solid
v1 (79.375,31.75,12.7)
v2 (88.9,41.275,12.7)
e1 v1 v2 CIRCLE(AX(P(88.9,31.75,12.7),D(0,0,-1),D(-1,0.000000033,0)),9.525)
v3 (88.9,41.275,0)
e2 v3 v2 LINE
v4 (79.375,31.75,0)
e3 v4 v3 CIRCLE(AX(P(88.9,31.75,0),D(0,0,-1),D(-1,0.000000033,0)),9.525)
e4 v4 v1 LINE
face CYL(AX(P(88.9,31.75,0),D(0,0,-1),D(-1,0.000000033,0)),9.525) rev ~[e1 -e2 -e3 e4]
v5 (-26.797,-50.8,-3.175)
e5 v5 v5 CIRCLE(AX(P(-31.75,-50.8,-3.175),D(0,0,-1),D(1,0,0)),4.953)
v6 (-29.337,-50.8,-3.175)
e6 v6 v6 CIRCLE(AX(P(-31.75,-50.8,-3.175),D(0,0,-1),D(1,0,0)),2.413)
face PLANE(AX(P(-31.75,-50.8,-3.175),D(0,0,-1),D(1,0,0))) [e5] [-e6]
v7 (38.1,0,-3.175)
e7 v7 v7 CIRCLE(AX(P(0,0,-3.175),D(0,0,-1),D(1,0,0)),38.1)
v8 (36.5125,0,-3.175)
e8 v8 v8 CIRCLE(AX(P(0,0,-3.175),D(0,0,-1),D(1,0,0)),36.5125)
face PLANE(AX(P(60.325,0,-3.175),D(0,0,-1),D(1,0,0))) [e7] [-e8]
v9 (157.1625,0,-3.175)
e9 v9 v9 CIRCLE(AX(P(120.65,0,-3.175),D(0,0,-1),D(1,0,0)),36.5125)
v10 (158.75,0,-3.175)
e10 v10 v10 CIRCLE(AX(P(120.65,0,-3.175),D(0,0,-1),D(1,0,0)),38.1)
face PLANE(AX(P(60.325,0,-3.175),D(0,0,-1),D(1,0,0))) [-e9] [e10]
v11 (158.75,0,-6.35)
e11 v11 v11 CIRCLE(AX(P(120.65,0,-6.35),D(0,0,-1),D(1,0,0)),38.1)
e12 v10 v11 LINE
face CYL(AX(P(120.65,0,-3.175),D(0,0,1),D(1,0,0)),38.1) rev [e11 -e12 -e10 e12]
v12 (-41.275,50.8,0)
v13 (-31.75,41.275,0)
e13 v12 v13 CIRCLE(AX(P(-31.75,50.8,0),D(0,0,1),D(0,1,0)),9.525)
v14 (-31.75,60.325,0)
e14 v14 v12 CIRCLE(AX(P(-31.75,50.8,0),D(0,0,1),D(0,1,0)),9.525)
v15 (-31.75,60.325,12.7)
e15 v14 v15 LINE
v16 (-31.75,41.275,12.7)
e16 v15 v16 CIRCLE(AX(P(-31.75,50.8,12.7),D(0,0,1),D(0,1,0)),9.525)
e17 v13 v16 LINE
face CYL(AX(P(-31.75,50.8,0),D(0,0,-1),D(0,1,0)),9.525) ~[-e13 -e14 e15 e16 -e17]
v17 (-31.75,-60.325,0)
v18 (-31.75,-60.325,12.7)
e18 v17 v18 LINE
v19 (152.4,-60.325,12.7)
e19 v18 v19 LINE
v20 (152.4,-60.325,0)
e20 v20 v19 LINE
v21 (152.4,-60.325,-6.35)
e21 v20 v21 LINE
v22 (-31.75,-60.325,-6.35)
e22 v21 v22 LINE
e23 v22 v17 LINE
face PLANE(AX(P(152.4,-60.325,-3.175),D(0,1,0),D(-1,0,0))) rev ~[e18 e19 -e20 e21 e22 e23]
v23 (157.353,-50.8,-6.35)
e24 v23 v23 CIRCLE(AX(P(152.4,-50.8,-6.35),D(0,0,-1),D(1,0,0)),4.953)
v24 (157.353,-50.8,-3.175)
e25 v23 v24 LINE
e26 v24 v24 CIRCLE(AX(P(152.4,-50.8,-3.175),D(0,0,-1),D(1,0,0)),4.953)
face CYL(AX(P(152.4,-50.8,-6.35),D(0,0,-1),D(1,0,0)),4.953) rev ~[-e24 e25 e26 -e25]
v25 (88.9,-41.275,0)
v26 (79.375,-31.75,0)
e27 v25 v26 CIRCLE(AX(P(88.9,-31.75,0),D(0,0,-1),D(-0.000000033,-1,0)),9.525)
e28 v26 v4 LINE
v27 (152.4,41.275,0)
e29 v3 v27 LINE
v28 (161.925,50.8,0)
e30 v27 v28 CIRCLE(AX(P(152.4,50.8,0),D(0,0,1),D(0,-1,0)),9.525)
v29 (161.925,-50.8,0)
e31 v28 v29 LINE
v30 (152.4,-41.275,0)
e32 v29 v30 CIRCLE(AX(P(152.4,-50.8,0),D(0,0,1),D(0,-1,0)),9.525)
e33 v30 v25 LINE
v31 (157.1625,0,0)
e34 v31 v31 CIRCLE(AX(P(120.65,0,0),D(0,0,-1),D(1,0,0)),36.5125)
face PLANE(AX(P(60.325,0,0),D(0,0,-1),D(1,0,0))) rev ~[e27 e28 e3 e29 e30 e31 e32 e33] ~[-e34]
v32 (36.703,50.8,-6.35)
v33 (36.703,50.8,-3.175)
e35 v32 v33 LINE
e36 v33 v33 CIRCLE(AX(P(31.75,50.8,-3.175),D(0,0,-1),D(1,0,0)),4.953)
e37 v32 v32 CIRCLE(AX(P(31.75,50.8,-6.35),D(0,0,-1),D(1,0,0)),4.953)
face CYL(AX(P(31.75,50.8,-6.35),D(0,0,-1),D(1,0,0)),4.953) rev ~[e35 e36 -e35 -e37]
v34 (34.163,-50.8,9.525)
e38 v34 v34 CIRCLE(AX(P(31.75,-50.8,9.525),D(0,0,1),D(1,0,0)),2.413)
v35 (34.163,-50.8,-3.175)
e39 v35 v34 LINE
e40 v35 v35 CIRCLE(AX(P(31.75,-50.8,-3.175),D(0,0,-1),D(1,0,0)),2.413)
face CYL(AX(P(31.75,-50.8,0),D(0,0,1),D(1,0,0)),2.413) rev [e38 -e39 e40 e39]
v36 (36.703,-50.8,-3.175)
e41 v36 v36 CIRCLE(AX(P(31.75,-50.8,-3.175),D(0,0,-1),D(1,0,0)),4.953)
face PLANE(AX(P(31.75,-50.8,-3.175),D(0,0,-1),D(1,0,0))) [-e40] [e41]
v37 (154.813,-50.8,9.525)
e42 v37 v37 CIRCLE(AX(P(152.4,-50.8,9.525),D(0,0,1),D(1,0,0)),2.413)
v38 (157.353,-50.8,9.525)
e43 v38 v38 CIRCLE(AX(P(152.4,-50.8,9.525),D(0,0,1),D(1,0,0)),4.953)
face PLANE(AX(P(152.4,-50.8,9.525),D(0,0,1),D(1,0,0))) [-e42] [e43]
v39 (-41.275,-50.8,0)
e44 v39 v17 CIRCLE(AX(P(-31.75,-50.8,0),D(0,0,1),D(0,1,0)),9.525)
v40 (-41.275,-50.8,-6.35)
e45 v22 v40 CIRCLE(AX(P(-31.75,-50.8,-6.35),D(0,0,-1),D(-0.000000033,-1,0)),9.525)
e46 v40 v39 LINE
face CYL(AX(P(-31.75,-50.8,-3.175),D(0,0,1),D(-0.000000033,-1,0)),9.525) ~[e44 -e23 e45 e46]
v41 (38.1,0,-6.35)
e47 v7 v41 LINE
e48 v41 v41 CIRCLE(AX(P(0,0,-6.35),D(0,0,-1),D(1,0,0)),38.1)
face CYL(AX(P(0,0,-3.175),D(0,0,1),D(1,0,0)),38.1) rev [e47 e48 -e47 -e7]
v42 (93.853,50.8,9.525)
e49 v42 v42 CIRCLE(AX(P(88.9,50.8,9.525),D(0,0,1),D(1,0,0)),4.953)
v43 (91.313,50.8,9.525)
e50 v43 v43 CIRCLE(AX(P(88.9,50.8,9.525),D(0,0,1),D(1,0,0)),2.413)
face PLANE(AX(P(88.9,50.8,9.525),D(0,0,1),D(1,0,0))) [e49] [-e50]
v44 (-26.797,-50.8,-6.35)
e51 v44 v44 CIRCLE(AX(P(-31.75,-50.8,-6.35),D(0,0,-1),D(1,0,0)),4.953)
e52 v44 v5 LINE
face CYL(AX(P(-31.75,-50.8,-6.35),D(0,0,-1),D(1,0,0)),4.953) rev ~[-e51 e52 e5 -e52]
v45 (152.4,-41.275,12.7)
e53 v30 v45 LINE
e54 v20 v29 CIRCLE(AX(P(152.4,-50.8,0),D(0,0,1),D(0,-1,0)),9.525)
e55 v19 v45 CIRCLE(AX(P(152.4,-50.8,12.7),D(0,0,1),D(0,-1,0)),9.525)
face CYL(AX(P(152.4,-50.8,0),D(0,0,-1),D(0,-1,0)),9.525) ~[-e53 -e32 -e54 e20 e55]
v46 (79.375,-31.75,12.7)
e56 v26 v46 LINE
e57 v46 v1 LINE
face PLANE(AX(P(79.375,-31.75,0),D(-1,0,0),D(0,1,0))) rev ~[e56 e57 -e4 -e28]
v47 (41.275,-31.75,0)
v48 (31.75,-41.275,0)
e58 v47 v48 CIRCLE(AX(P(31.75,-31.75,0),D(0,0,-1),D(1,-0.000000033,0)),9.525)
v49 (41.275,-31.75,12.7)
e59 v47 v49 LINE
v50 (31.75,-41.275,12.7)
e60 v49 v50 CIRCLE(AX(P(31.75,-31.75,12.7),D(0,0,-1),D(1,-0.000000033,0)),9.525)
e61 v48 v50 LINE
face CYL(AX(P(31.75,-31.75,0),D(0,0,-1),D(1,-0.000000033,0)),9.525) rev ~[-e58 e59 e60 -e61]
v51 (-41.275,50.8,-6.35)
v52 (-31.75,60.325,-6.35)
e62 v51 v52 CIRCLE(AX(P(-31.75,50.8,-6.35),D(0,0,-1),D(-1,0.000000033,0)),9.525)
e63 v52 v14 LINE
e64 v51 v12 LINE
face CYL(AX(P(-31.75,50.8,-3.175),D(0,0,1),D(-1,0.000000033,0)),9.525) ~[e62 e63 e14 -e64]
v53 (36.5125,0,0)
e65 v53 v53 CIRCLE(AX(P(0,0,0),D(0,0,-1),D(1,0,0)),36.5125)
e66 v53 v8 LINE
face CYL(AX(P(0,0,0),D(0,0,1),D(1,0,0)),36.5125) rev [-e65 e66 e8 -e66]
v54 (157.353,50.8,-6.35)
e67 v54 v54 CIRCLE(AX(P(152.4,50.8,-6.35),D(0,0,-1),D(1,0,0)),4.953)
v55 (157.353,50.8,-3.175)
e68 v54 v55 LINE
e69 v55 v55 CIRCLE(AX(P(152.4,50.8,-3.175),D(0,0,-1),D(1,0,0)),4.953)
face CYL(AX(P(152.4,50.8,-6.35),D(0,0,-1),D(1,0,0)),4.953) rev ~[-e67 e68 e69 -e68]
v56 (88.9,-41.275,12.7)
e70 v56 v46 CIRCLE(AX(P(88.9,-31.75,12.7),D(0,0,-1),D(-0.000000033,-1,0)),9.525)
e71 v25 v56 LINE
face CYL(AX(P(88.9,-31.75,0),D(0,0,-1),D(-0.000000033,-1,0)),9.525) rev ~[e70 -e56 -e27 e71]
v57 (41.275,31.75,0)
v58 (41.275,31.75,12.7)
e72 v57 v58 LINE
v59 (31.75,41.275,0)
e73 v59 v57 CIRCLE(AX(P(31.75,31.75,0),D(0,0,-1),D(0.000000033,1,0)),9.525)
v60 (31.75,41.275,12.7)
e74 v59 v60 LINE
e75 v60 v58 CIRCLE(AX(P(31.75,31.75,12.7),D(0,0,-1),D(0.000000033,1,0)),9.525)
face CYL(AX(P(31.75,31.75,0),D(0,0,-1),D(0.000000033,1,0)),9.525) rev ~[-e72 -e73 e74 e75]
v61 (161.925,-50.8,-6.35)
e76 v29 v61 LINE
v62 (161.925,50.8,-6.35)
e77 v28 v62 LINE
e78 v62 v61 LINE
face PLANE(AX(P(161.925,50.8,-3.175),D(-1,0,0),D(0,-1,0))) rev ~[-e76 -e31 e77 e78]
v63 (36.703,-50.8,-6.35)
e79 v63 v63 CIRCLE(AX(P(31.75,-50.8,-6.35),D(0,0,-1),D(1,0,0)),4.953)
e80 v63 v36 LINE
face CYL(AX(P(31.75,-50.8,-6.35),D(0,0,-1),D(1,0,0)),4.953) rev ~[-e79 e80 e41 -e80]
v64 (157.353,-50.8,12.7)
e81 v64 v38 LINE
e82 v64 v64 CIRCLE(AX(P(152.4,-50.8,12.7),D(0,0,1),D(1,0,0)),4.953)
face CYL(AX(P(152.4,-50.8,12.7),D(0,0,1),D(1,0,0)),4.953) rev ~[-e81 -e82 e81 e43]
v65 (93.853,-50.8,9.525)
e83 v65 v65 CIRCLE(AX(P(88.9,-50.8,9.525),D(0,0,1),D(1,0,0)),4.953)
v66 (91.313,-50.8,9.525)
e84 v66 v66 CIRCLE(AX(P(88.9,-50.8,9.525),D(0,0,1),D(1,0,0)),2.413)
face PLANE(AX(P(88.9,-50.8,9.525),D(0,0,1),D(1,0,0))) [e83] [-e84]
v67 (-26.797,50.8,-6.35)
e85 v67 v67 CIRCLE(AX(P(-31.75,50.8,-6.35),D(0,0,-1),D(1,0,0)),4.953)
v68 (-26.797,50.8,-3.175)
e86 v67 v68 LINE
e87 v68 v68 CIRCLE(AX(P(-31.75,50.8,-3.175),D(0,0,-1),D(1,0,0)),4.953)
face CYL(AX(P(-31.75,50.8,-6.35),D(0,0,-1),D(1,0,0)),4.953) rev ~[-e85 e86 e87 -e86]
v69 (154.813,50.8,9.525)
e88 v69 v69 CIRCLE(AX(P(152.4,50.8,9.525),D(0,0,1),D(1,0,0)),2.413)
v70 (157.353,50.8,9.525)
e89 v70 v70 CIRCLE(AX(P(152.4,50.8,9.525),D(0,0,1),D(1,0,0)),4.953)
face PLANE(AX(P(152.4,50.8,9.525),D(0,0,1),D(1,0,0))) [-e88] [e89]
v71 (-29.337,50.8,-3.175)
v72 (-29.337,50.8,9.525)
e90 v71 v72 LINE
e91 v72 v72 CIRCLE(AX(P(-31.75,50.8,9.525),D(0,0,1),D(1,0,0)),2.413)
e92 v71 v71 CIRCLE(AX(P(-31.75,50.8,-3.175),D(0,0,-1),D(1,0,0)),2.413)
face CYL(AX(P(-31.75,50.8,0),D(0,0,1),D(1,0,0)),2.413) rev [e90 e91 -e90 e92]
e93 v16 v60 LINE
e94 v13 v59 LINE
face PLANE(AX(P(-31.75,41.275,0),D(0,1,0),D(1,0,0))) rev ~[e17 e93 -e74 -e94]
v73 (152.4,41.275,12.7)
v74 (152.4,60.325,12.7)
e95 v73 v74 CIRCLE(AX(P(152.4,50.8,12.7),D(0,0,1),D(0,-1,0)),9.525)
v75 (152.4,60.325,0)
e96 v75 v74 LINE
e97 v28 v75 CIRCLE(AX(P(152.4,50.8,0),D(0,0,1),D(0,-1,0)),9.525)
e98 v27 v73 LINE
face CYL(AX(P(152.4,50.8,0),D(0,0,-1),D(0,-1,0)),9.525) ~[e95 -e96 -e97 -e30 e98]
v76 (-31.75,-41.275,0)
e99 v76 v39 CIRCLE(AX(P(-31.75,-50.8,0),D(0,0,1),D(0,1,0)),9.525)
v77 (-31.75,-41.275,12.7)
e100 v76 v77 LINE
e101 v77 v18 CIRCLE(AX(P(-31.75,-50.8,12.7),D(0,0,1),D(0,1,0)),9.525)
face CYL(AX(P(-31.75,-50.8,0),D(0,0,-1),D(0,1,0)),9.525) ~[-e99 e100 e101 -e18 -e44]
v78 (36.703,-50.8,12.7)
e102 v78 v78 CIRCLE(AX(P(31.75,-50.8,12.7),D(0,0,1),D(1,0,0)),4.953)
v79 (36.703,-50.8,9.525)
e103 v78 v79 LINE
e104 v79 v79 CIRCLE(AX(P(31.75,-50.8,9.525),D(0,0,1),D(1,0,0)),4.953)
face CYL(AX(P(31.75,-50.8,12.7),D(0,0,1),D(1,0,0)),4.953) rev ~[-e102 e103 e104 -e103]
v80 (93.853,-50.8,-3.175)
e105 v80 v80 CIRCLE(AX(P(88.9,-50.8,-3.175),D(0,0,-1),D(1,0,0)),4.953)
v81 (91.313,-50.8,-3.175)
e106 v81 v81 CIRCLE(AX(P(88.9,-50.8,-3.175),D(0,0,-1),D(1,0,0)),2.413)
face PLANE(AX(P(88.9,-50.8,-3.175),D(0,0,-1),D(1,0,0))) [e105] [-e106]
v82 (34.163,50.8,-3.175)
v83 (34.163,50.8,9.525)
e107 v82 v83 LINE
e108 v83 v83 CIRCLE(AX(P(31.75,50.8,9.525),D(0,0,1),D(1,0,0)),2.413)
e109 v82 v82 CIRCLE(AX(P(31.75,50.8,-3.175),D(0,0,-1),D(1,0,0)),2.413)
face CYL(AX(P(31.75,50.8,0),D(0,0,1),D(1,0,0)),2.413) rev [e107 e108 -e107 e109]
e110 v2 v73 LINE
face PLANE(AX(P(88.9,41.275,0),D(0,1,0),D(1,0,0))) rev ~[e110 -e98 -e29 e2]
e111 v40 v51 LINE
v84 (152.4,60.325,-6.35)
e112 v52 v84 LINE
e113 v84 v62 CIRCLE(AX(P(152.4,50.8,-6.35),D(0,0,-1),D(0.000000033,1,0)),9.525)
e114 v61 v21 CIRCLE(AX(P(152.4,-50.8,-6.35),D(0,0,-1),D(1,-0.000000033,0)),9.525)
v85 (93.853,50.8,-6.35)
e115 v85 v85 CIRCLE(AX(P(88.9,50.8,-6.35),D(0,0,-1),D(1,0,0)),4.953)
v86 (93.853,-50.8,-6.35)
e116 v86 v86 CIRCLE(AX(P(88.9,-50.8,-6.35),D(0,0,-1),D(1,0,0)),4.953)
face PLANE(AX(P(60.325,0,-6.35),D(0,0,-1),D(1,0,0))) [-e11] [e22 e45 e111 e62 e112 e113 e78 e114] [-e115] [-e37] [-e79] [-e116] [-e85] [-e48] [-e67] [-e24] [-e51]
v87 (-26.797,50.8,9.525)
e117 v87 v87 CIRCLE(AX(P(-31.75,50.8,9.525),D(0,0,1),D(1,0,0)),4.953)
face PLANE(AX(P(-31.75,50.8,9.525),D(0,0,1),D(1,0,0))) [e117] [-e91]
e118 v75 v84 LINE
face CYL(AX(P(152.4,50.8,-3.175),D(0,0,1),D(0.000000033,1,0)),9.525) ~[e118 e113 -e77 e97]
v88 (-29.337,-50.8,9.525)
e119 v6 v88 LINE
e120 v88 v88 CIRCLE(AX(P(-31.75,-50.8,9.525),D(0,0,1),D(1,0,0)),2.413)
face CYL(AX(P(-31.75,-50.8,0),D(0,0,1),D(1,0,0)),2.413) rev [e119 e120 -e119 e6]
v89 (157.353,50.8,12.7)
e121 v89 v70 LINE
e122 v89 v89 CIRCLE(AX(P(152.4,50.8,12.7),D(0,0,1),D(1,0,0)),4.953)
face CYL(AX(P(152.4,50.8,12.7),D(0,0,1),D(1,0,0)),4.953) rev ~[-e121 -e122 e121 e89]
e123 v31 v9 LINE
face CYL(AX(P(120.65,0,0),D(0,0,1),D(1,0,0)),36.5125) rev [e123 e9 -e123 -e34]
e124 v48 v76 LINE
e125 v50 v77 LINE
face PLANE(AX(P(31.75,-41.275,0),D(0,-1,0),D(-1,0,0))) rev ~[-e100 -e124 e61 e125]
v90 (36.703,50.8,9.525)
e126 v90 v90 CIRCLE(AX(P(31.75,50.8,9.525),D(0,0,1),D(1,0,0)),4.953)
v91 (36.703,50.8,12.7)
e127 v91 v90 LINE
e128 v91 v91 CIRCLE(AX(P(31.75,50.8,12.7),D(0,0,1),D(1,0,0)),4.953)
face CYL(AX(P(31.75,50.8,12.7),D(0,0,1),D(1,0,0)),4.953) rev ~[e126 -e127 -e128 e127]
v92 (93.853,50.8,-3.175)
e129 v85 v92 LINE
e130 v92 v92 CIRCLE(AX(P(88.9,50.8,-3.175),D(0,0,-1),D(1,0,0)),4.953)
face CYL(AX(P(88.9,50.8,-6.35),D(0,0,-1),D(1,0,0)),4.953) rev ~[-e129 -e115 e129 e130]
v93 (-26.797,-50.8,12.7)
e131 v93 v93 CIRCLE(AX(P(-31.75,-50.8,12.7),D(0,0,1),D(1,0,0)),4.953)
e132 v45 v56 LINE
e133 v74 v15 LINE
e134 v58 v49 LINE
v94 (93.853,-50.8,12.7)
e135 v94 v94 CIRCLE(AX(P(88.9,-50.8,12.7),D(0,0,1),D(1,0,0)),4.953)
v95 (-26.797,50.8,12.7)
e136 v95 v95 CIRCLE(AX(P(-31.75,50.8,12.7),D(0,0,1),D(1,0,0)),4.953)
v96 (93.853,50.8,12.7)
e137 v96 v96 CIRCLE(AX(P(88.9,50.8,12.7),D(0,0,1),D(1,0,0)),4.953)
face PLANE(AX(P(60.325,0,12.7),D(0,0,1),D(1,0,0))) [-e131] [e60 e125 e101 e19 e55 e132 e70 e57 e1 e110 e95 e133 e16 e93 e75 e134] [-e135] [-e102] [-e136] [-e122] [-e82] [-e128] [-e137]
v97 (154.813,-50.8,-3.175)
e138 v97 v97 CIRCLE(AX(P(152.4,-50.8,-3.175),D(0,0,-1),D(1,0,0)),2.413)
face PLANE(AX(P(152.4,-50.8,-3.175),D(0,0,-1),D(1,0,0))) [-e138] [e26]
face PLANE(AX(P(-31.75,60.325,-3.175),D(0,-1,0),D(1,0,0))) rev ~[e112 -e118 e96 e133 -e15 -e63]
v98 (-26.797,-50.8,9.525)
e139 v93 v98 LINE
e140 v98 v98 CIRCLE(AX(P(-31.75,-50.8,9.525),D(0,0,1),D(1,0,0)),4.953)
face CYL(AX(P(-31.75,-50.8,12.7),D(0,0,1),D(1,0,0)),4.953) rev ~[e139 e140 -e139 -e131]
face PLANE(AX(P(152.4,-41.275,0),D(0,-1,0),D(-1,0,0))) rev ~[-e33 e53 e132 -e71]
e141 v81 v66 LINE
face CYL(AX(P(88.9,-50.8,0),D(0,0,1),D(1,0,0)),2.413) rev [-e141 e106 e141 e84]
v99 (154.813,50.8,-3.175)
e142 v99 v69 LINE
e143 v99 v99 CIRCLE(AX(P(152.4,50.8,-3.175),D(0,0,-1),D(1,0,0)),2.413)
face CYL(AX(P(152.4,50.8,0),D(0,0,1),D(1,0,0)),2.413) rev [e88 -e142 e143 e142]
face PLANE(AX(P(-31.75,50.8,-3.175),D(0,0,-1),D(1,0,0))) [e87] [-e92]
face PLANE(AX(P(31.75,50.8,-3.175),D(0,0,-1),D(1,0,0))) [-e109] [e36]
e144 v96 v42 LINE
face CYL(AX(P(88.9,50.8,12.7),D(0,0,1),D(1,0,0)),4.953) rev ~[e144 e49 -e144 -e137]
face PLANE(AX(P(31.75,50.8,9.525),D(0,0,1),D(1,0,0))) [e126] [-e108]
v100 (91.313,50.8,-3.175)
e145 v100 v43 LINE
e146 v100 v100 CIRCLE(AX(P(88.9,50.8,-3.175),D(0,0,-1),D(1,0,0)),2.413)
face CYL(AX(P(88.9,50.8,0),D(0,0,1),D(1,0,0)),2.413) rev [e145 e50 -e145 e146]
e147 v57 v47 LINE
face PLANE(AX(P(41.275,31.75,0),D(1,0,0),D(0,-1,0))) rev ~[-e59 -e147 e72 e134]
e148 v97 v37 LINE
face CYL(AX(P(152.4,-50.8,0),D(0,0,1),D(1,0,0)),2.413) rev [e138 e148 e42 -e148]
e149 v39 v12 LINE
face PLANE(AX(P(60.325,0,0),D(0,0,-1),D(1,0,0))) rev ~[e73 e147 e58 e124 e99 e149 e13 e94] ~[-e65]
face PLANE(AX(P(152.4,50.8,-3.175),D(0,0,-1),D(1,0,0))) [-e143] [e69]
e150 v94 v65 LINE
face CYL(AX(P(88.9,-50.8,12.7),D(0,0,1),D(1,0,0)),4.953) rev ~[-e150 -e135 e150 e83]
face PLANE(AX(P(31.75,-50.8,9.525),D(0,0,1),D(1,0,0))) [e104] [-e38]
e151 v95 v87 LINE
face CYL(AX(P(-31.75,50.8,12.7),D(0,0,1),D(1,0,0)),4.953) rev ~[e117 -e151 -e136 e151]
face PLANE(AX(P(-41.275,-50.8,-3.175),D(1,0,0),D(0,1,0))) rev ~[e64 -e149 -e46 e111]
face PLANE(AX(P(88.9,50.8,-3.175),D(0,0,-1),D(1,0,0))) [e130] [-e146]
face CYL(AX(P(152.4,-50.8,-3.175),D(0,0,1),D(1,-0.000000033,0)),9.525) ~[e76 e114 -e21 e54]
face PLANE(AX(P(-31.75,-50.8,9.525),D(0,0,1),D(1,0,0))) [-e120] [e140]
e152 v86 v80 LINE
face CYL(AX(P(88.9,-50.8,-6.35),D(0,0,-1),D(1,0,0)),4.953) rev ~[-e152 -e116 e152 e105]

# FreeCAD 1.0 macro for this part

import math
import FreeCAD as App
import Part
import Sketcher
from FreeCAD import Vector
Q = App.Units.Quantity

doc = App.newDocument("Part")
body = doc.addObject("PartDesign::Body", "Body")

sketch1 = body.newObject("Sketcher::SketchObject", "Sketch")
sketch1.AttachmentSupport = (doc.getObject("XY_Plane"), [""])
sketch1.MapMode = "FlatFace"
sketch1.addGeometry(Part.LineSegment(Vector(31.8, -41.3, 0), Vector(-31.8, -41.3, 0)), False)
sketch1.addGeometry(Part.ArcOfCircle(Part.Circle(Vector(-31.8, -50.8, 0), Vector(0, 0, 1), 9.5), math.radians(90), math.radians(270)), False)
sketch1.addGeometry(Part.LineSegment(Vector(-31.8, -60.3, 0), Vector(152.4, -60.3, 0)), False)
sketch1.addGeometry(Part.ArcOfCircle(Part.Circle(Vector(152.4, -50.8, 0), Vector(0, 0, 1), 9.5), math.radians(-90), math.radians(90)), False)
sketch1.addGeometry(Part.LineSegment(Vector(152.4, -41.3, 0), Vector(88.9, -41.3, 0)), False)
sketch1.addGeometry(Part.ArcOfCircle(Part.Circle(Vector(88.9, -31.7, 0), Vector(0, 0, 1), 9.5), math.radians(-180), math.radians(-90)), False)
sketch1.addGeometry(Part.LineSegment(Vector(79.4, -31.8, 0), Vector(79.4, 31.8, 0)), False)
sketch1.addGeometry(Part.ArcOfCircle(Part.Circle(Vector(88.9, 31.7, 0), Vector(0, 0, 1), 9.5), math.radians(90), math.radians(180)), False)
sketch1.addGeometry(Part.LineSegment(Vector(88.9, 41.3, 0), Vector(152.4, 41.3, 0)), False)
sketch1.addGeometry(Part.ArcOfCircle(Part.Circle(Vector(152.4, 50.8, 0), Vector(0, 0, 1), 9.5), math.radians(-90), math.radians(90)), False)
sketch1.addGeometry(Part.LineSegment(Vector(152.4, 60.3, 0), Vector(-31.8, 60.3, 0)), False)
sketch1.addGeometry(Part.ArcOfCircle(Part.Circle(Vector(-31.8, 50.8, 0), Vector(0, 0, 1), 9.5), math.radians(90), math.radians(270)), False)
sketch1.addGeometry(Part.LineSegment(Vector(-31.8, 41.3, 0), Vector(31.8, 41.3, 0)), False)
sketch1.addGeometry(Part.ArcOfCircle(Part.Circle(Vector(31.7, 31.7, 0), Vector(0, 0, 1), 9.5), math.radians(0), math.radians(90)), False)
sketch1.addGeometry(Part.LineSegment(Vector(41.3, 31.8, 0), Vector(41.3, -31.8, 0)), False)
sketch1.addGeometry(Part.ArcOfCircle(Part.Circle(Vector(31.7, -31.7, 0), Vector(0, 0, 1), 9.5), math.radians(-90), math.radians(0)), False)
sketch1.addGeometry(Part.Circle(Vector(-31.8, -50.8, 0), Vector(0, 0, 1), 2.4), False)
sketch1.addGeometry(Part.Circle(Vector(31.8, -50.8, 0), Vector(0, 0, 1), 2.4), False)
sketch1.addGeometry(Part.Circle(Vector(88.9, -50.8, 0), Vector(0, 0, 1), 2.4), False)
sketch1.addGeometry(Part.Circle(Vector(152.4, -50.8, 0), Vector(0, 0, 1), 2.4), False)
sketch1.addGeometry(Part.Circle(Vector(-31.8, 50.8, 0), Vector(0, 0, 1), 2.4), False)
sketch1.addGeometry(Part.Circle(Vector(31.8, 50.8, 0), Vector(0, 0, 1), 2.4), False)
sketch1.addGeometry(Part.Circle(Vector(88.9, 50.8, 0), Vector(0, 0, 1), 2.4), False)
sketch1.addGeometry(Part.Circle(Vector(152.4, 50.8, 0), Vector(0, 0, 1), 2.4), False)
sketch1.addConstraint(Sketcher.Constraint("Tangent", 0, 2, 1, 1))
sketch1.addConstraint(Sketcher.Constraint("Tangent", 1, 2, 2, 1))
sketch1.addConstraint(Sketcher.Constraint("Tangent", 2, 2, 3, 1))
sketch1.addConstraint(Sketcher.Constraint("Tangent", 3, 2, 4, 1))
sketch1.addConstraint(Sketcher.Constraint("Tangent", 4, 2, 5, 2))
sketch1.addConstraint(Sketcher.Constraint("Tangent", 5, 1, 6, 1))
sketch1.addConstraint(Sketcher.Constraint("Tangent", 6, 2, 7, 2))
sketch1.addConstraint(Sketcher.Constraint("Tangent", 7, 1, 8, 1))
sketch1.addConstraint(Sketcher.Constraint("Tangent", 8, 2, 9, 1))
sketch1.addConstraint(Sketcher.Constraint("Tangent", 9, 2, 10, 1))
sketch1.addConstraint(Sketcher.Constraint("Tangent", 10, 2, 11, 1))
sketch1.addConstraint(Sketcher.Constraint("Tangent", 11, 2, 12, 1))
sketch1.addConstraint(Sketcher.Constraint("Tangent", 12, 2, 13, 2))
sketch1.addConstraint(Sketcher.Constraint("Tangent", 13, 1, 14, 1))
sketch1.addConstraint(Sketcher.Constraint("Tangent", 14, 2, 15, 2))
sketch1.addConstraint(Sketcher.Constraint("Tangent", 15, 1, 0, 1))
sketch1.addConstraint(Sketcher.Constraint("Horizontal", 0))
sketch1.addConstraint(Sketcher.Constraint("Horizontal", 2))
sketch1.addConstraint(Sketcher.Constraint("Horizontal", 4))
sketch1.addConstraint(Sketcher.Constraint("Vertical", 6))
sketch1.addConstraint(Sketcher.Constraint("Horizontal", 8))
sketch1.addConstraint(Sketcher.Constraint("Horizontal", 10))
sketch1.addConstraint(Sketcher.Constraint("Horizontal", 12))
sketch1.addConstraint(Sketcher.Constraint("Vertical", 14))
sketch1.addConstraint(Sketcher.Constraint("Coincident", 16, 3, 1, 3))
sketch1.addConstraint(Sketcher.Constraint("Coincident", 19, 3, 3, 3))
sketch1.addConstraint(Sketcher.Constraint("Coincident", 20, 3, 11, 3))
sketch1.addConstraint(Sketcher.Constraint("Coincident", 23, 3, 9, 3))
sketch1.addConstraint(Sketcher.Constraint("Equal", 1, 3))
sketch1.addConstraint(Sketcher.Constraint("Equal", 3, 5))
sketch1.addConstraint(Sketcher.Constraint("Equal", 5, 7))
sketch1.addConstraint(Sketcher.Constraint("Equal", 7, 9))
sketch1.addConstraint(Sketcher.Constraint("Equal", 9, 11))
sketch1.addConstraint(Sketcher.Constraint("Equal", 11, 13))
sketch1.addConstraint(Sketcher.Constraint("Equal", 13, 15))
sketch1.addConstraint(Sketcher.Constraint("Equal", 16, 17))
sketch1.addConstraint(Sketcher.Constraint("Equal", 17, 18))
sketch1.addConstraint(Sketcher.Constraint("Equal", 18, 19))
sketch1.addConstraint(Sketcher.Constraint("Equal", 19, 20))
sketch1.addConstraint(Sketcher.Constraint("Equal", 20, 21))
sketch1.addConstraint(Sketcher.Constraint("Equal", 21, 22))
sketch1.addConstraint(Sketcher.Constraint("Equal", 22, 23))
sketch1.addConstraint(Sketcher.Constraint("Symmetric", 11, 3, 17, 3, -1, 1))
sketch1.addConstraint(Sketcher.Constraint("Symmetric", 1, 3, 21, 3, -1, 1))
sketch1.addConstraint(Sketcher.Constraint("Symmetric", 0, 2, 12, 2, -1, 1))
sketch1.addConstraint(Sketcher.Constraint("Symmetric", 18, 3, 22, 3, -1))
sketch1.addConstraint(Sketcher.Constraint("Horizontal", 17, 3, 18, 3))
sketch1.addConstraint(Sketcher.Constraint("Vertical", 3, 3, 9, 3))
sketch1.addConstraint(Sketcher.Constraint("Vertical", 1, 3, 11, 3))
sketch1.addConstraint(Sketcher.Constraint("Vertical", 7, 3, 18, 3))
sketch1.addConstraint(Sketcher.Constraint("Equal", 0, 4))
sketch1.addConstraint(Sketcher.Constraint("Equal", 12, 6))
sketch1.addConstraint(Sketcher.Constraint("Diameter", 16, Q("0.19 in")))
sketch1.addConstraint(Sketcher.Constraint("DistanceX", 0, 2, 0, 1, Q("2.5 in")))
sketch1.addConstraint(Sketcher.Constraint("DistanceY", 1, 3, -1, 1, Q("2 in")))
sketch1.addConstraint(Sketcher.Constraint("DistanceX", -1, 1, 3, 3, Q("6 in")))
pad1 = body.newObject("PartDesign::Pad", "Pad")
pad1.Profile = sketch1
pad1.Length = Q("0.5 in")

sketch2 = body.newObject("Sketcher::SketchObject", "Sketch001")
sketch2.AttachmentSupport = (doc.getObject("XY_Plane"), [""])
sketch2.MapMode = "FlatFace"
sketch2.addGeometry(Part.ArcOfCircle(Part.Circle(Vector(152.4, -50.8, 0), Vector(0, 0, 1), 9.5), math.radians(-90), math.radians(0)), False)
sketch2.addGeometry(Part.LineSegment(Vector(152.4, -60.3, 0), Vector(-31.8, -60.3, 0)), False)
sketch2.addGeometry(Part.ArcOfCircle(Part.Circle(Vector(-31.7, -50.8, 0), Vector(0, 0, 1), 9.5), math.radians(-180), math.radians(-90)), False)
sketch2.addGeometry(Part.LineSegment(Vector(-41.3, -50.8, 0), Vector(-41.3, 50.8, 0)), False)
sketch2.addGeometry(Part.ArcOfCircle(Part.Circle(Vector(-31.7, 50.8, 0), Vector(0, 0, 1), 9.5), math.radians(90), math.radians(180)), False)
sketch2.addGeometry(Part.LineSegment(Vector(-31.8, 60.3, 0), Vector(152.4, 60.3, 0)), False)
sketch2.addGeometry(Part.ArcOfCircle(Part.Circle(Vector(152.4, 50.8, 0), Vector(0, 0, 1), 9.5), math.radians(0), math.radians(90)), False)
sketch2.addGeometry(Part.LineSegment(Vector(161.9, 50.8, 0), Vector(161.9, -50.8, 0)), False)
sketch2.addGeometry(Part.Circle(Vector(-31.8, 50.8, 0), Vector(0, 0, 1), 2.4), False)
sketch2.addGeometry(Part.Circle(Vector(31.8, 50.8, 0), Vector(0, 0, 1), 2.4), False)
sketch2.addGeometry(Part.Circle(Vector(88.9, 50.8, 0), Vector(0, 0, 1), 2.4), False)
sketch2.addGeometry(Part.Circle(Vector(152.4, 50.8, 0), Vector(0, 0, 1), 2.4), False)
sketch2.addGeometry(Part.Circle(Vector(0, 0, 0), Vector(0, 0, 1), 36.5), False)
sketch2.addGeometry(Part.Circle(Vector(-31.8, -50.8, 0), Vector(0, 0, 1), 2.4), False)
sketch2.addGeometry(Part.Circle(Vector(31.8, -50.8, 0), Vector(0, 0, 1), 2.4), False)
sketch2.addGeometry(Part.Circle(Vector(120.7, 0, 0), Vector(0, 0, 1), 36.5), False)
sketch2.addGeometry(Part.Circle(Vector(88.9, -50.8, 0), Vector(0, 0, 1), 2.4), False)
sketch2.addGeometry(Part.Circle(Vector(152.4, -50.8, 0), Vector(0, 0, 1), 2.4), False)
sketch2.addConstraint(Sketcher.Constraint("Tangent", 0, 1, 1, 1))
sketch2.addConstraint(Sketcher.Constraint("Tangent", 1, 2, 2, 2))
sketch2.addConstraint(Sketcher.Constraint("Tangent", 2, 1, 3, 1))
sketch2.addConstraint(Sketcher.Constraint("Tangent", 3, 2, 4, 2))
sketch2.addConstraint(Sketcher.Constraint("Tangent", 4, 1, 5, 1))
sketch2.addConstraint(Sketcher.Constraint("Tangent", 5, 2, 6, 2))
sketch2.addConstraint(Sketcher.Constraint("Tangent", 6, 1, 7, 1))
sketch2.addConstraint(Sketcher.Constraint("Tangent", 7, 2, 0, 2))
sketch2.addConstraint(Sketcher.Constraint("Horizontal", 1))
sketch2.addConstraint(Sketcher.Constraint("Vertical", 3))
sketch2.addConstraint(Sketcher.Constraint("Horizontal", 5))
sketch2.addConstraint(Sketcher.Constraint("Vertical", 7))
sketch2.addConstraint(Sketcher.Constraint("Coincident", 12, 3, -1, 1))
sketch2.addConstraint(Sketcher.Constraint("Coincident", 8, 3, 4, 3))
sketch2.addConstraint(Sketcher.Constraint("Coincident", 11, 3, 6, 3))
sketch2.addConstraint(Sketcher.Constraint("Coincident", 13, 3, 2, 3))
sketch2.addConstraint(Sketcher.Constraint("Coincident", 17, 3, 0, 3))
sketch2.addConstraint(Sketcher.Constraint("Equal", 0, 2))
sketch2.addConstraint(Sketcher.Constraint("Equal", 2, 4))
sketch2.addConstraint(Sketcher.Constraint("Equal", 4, 6))
sketch2.addConstraint(Sketcher.Constraint("Equal", 8, 9))
sketch2.addConstraint(Sketcher.Constraint("Equal", 9, 10))
sketch2.addConstraint(Sketcher.Constraint("Equal", 10, 11))
sketch2.addConstraint(Sketcher.Constraint("Equal", 11, 13))
sketch2.addConstraint(Sketcher.Constraint("Equal", 13, 14))
sketch2.addConstraint(Sketcher.Constraint("Equal", 12, 15))
sketch2.addConstraint(Sketcher.Constraint("Equal", 14, 16))
sketch2.addConstraint(Sketcher.Constraint("Equal", 16, 17))
sketch2.addConstraint(Sketcher.Constraint("Symmetric", 2, 3, 9, 3, -1, 1))
sketch2.addConstraint(Sketcher.Constraint("Symmetric", 4, 3, 14, 3, -1, 1))
sketch2.addConstraint(Sketcher.Constraint("Symmetric", 10, 3, 16, 3, -1))
sketch2.addConstraint(Sketcher.Constraint("PointOnObject", 15, 3, -1))
sketch2.addConstraint(Sketcher.Constraint("Horizontal", 8, 3, 9, 3))
sketch2.addConstraint(Sketcher.Constraint("Horizontal", 9, 3, 10, 3))
sketch2.addConstraint(Sketcher.Constraint("Diameter", 8, Q("0.19 in")))
sketch2.addConstraint(Sketcher.Constraint("DistanceY", 3, 1, 3, 2, Q("4 in")))
sketch2.addConstraint(Sketcher.Constraint("Diameter", 12, Q("2.875 in")))
sketch2.addConstraint(Sketcher.Constraint("DistanceX", -1, 1, 0, 3, Q("6 in")))
sketch2.addConstraint(Sketcher.Constraint("Radius", 0, Q("0.375 in")))
sketch2.addConstraint(Sketcher.Constraint("DistanceX", 1, 2, 1, 1, Q("7.25 in")))
sketch2.addConstraint(Sketcher.Constraint("DistanceX", -1, 1, 10, 3, Q("3.5 in")))
sketch2.addConstraint(Sketcher.Constraint("DistanceX", 9, 3, 15, 3, Q("3.5 in")))
pad2 = body.newObject("PartDesign::Pad", "Pad001")
pad2.Profile = sketch2
pad2.Length = Q("0.125 in")
pad2.Reversed = True

sketch3 = body.newObject("Sketcher::SketchObject", "Sketch002")
sketch3.AttachmentSupport = (doc.getObject("XY_Plane"), [""])
sketch3.MapMode = "FlatFace"
sketch3.AttachmentOffset = App.Placement(Vector(0, 0, -0.125 * 25.4), App.Rotation())
sketch3.addGeometry(Part.LineSegment(Vector(-31.8, 60.3, 0), Vector(152.4, 60.3, 0)), False)
sketch3.addGeometry(Part.ArcOfCircle(Part.Circle(Vector(152.4, 50.8, 0), Vector(0, 0, 1), 9.5), math.radians(0), math.radians(90)), False)
sketch3.addGeometry(Part.LineSegment(Vector(161.9, 50.8, 0), Vector(161.9, -50.8, 0)), False)
sketch3.addGeometry(Part.ArcOfCircle(Part.Circle(Vector(152.4, -50.8, 0), Vector(0, 0, 1), 9.5), math.radians(-90), math.radians(0)), False)
sketch3.addGeometry(Part.LineSegment(Vector(152.4, -60.3, 0), Vector(-31.8, -60.3, 0)), False)
sketch3.addGeometry(Part.ArcOfCircle(Part.Circle(Vector(-31.7, -50.8, 0), Vector(0, 0, 1), 9.5), math.radians(-180), math.radians(-90)), False)
sketch3.addGeometry(Part.LineSegment(Vector(-41.3, -50.8, 0), Vector(-41.3, 50.8, 0)), False)
sketch3.addGeometry(Part.ArcOfCircle(Part.Circle(Vector(-31.7, 50.8, 0), Vector(0, 0, 1), 9.5), math.radians(90), math.radians(180)), False)
sketch3.addGeometry(Part.Circle(Vector(-31.8, 50.8, 0), Vector(0, 0, 1), 2.8), False)
sketch3.addGeometry(Part.Circle(Vector(31.8, 50.8, 0), Vector(0, 0, 1), 2.8), False)
sketch3.addGeometry(Part.Circle(Vector(88.9, 50.8, 0), Vector(0, 0, 1), 2.8), False)
sketch3.addGeometry(Part.Circle(Vector(152.4, 50.8, 0), Vector(0, 0, 1), 2.8), False)
sketch3.addGeometry(Part.Circle(Vector(0, 0, 0), Vector(0, 0, 1), 38.1), False)
sketch3.addGeometry(Part.Circle(Vector(-31.8, -50.8, 0), Vector(0, 0, 1), 2.8), False)
sketch3.addGeometry(Part.Circle(Vector(31.8, -50.8, 0), Vector(0, 0, 1), 2.8), False)
sketch3.addGeometry(Part.Circle(Vector(120.7, 0, 0), Vector(0, 0, 1), 38.1), False)
sketch3.addGeometry(Part.Circle(Vector(88.9, -50.8, 0), Vector(0, 0, 1), 2.8), False)
sketch3.addGeometry(Part.Circle(Vector(152.4, -50.8, 0), Vector(0, 0, 1), 2.8), False)
sketch3.addConstraint(Sketcher.Constraint("Tangent", 0, 2, 1, 2))
sketch3.addConstraint(Sketcher.Constraint("Tangent", 1, 1, 2, 1))
sketch3.addConstraint(Sketcher.Constraint("Tangent", 2, 2, 3, 2))
sketch3.addConstraint(Sketcher.Constraint("Tangent", 3, 1, 4, 1))
sketch3.addConstraint(Sketcher.Constraint("Tangent", 4, 2, 5, 2))
sketch3.addConstraint(Sketcher.Constraint("Tangent", 5, 1, 6, 1))
sketch3.addConstraint(Sketcher.Constraint("Tangent", 6, 2, 7, 2))
sketch3.addConstraint(Sketcher.Constraint("Tangent", 7, 1, 0, 1))
sketch3.addConstraint(Sketcher.Constraint("Horizontal", 0))
sketch3.addConstraint(Sketcher.Constraint("Vertical", 2))
sketch3.addConstraint(Sketcher.Constraint("Horizontal", 4))
sketch3.addConstraint(Sketcher.Constraint("Vertical", 6))
sketch3.addConstraint(Sketcher.Constraint("Coincident", 12, 3, -1, 1))
sketch3.addConstraint(Sketcher.Constraint("Coincident", 8, 3, 7, 3))
sketch3.addConstraint(Sketcher.Constraint("Coincident", 11, 3, 1, 3))
sketch3.addConstraint(Sketcher.Constraint("Coincident", 13, 3, 5, 3))
sketch3.addConstraint(Sketcher.Constraint("Coincident", 17, 3, 3, 3))
sketch3.addConstraint(Sketcher.Constraint("Equal", 1, 3))
sketch3.addConstraint(Sketcher.Constraint("Equal", 3, 5))
sketch3.addConstraint(Sketcher.Constraint("Equal", 5, 7))
sketch3.addConstraint(Sketcher.Constraint("Equal", 8, 9))
sketch3.addConstraint(Sketcher.Constraint("Equal", 9, 10))
sketch3.addConstraint(Sketcher.Constraint("Equal", 10, 11))
sketch3.addConstraint(Sketcher.Constraint("Equal", 11, 13))
sketch3.addConstraint(Sketcher.Constraint("Equal", 13, 14))
sketch3.addConstraint(Sketcher.Constraint("Equal", 12, 15))
sketch3.addConstraint(Sketcher.Constraint("Equal", 14, 16))
sketch3.addConstraint(Sketcher.Constraint("Equal", 16, 17))
sketch3.addConstraint(Sketcher.Constraint("Symmetric", 5, 3, 9, 3, -1, 1))
sketch3.addConstraint(Sketcher.Constraint("Symmetric", 7, 3, 14, 3, -1, 1))
sketch3.addConstraint(Sketcher.Constraint("Symmetric", 10, 3, 16, 3, -1))
sketch3.addConstraint(Sketcher.Constraint("PointOnObject", 15, 3, -1))
sketch3.addConstraint(Sketcher.Constraint("Horizontal", 8, 3, 9, 3))
sketch3.addConstraint(Sketcher.Constraint("Horizontal", 9, 3, 10, 3))
sketch3.addConstraint(Sketcher.Constraint("Diameter", 12, Q("3 in")))
sketch3.addConstraint(Sketcher.Constraint("Diameter", 8, Q("0.22 in")))
sketch3.addConstraint(Sketcher.Constraint("DistanceY", 2, 2, 2, 1, Q("4 in")))
sketch3.addConstraint(Sketcher.Constraint("DistanceX", -1, 1, 1, 3, Q("6 in")))
sketch3.addConstraint(Sketcher.Constraint("Radius", 1, Q("0.375 in")))
sketch3.addConstraint(Sketcher.Constraint("DistanceX", 0, 1, 0, 2, Q("7.25 in")))
sketch3.addConstraint(Sketcher.Constraint("DistanceX", -1, 1, 10, 3, Q("3.5 in")))
sketch3.addConstraint(Sketcher.Constraint("DistanceX", 9, 3, 15, 3, Q("3.5 in")))
pad3 = body.newObject("PartDesign::Pad", "Pad002")
pad3.Profile = sketch3
pad3.Length = Q("0.125 in")
pad3.Reversed = True

sketch4 = body.newObject("Sketcher::SketchObject", "Sketch003")
sketch4.AttachmentSupport = (doc.getObject("XY_Plane"), [""])
sketch4.MapMode = "FlatFace"
sketch4.AttachmentOffset = App.Placement(Vector(0, 0, 0.5 * 25.4), App.Rotation())
sketch4.addGeometry(Part.Circle(Vector(-31.8, 50.8, 0), Vector(0, 0, 1), 5), False)
sketch4.addGeometry(Part.Circle(Vector(-31.8, 50.8, 0), Vector(0, 0, 1), 2.4), False)
sketch4.addGeometry(Part.Circle(Vector(31.8, 50.8, 0), Vector(0, 0, 1), 5), False)
sketch4.addGeometry(Part.Circle(Vector(31.8, 50.8, 0), Vector(0, 0, 1), 2.4), False)
sketch4.addGeometry(Part.Circle(Vector(88.9, 50.8, 0), Vector(0, 0, 1), 5), False)
sketch4.addGeometry(Part.Circle(Vector(88.9, 50.8, 0), Vector(0, 0, 1), 2.4), False)
sketch4.addGeometry(Part.Circle(Vector(152.4, 50.8, 0), Vector(0, 0, 1), 5), False)
sketch4.addGeometry(Part.Circle(Vector(152.4, 50.8, 0), Vector(0, 0, 1), 2.4), False)
sketch4.addGeometry(Part.Circle(Vector(-31.8, -50.8, 0), Vector(0, 0, 1), 5), False)
sketch4.addGeometry(Part.Circle(Vector(-31.8, -50.8, 0), Vector(0, 0, 1), 2.4), False)
sketch4.addGeometry(Part.Circle(Vector(31.8, -50.8, 0), Vector(0, 0, 1), 5), False)
sketch4.addGeometry(Part.Circle(Vector(31.8, -50.8, 0), Vector(0, 0, 1), 2.4), False)
sketch4.addGeometry(Part.Circle(Vector(88.9, -50.8, 0), Vector(0, 0, 1), 5), False)
sketch4.addGeometry(Part.Circle(Vector(88.9, -50.8, 0), Vector(0, 0, 1), 2.4), False)
sketch4.addGeometry(Part.Circle(Vector(152.4, -50.8, 0), Vector(0, 0, 1), 5), False)
sketch4.addGeometry(Part.Circle(Vector(152.4, -50.8, 0), Vector(0, 0, 1), 2.4), False)
sketch4.addConstraint(Sketcher.Constraint("Coincident", 1, 3, 0, 3))
sketch4.addConstraint(Sketcher.Constraint("Coincident", 3, 3, 2, 3))
sketch4.addConstraint(Sketcher.Constraint("Coincident", 5, 3, 4, 3))
sketch4.addConstraint(Sketcher.Constraint("Coincident", 7, 3, 6, 3))
sketch4.addConstraint(Sketcher.Constraint("Coincident", 9, 3, 8, 3))
sketch4.addConstraint(Sketcher.Constraint("Coincident", 11, 3, 10, 3))
sketch4.addConstraint(Sketcher.Constraint("Coincident", 13, 3, 12, 3))
sketch4.addConstraint(Sketcher.Constraint("Coincident", 15, 3, 14, 3))
sketch4.addConstraint(Sketcher.Constraint("Equal", 0, 2))
sketch4.addConstraint(Sketcher.Constraint("Equal", 1, 3))
sketch4.addConstraint(Sketcher.Constraint("Equal", 2, 4))
sketch4.addConstraint(Sketcher.Constraint("Equal", 3, 5))
sketch4.addConstraint(Sketcher.Constraint("Equal", 4, 6))
sketch4.addConstraint(Sketcher.Constraint("Equal", 5, 7))
sketch4.addConstraint(Sketcher.Constraint("Equal", 6, 8))
sketch4.addConstraint(Sketcher.Constraint("Equal", 7, 9))
sketch4.addConstraint(Sketcher.Constraint("Equal", 8, 10))
sketch4.addConstraint(Sketcher.Constraint("Equal", 9, 11))
sketch4.addConstraint(Sketcher.Constraint("Equal", 10, 12))
sketch4.addConstraint(Sketcher.Constraint("Equal", 11, 13))
sketch4.addConstraint(Sketcher.Constraint("Equal", 12, 14))
sketch4.addConstraint(Sketcher.Constraint("Equal", 13, 15))
sketch4.addConstraint(Sketcher.Constraint("Symmetric", 2, 3, 8, 3, -1, 1))
sketch4.addConstraint(Sketcher.Constraint("Symmetric", 0, 3, 10, 3, -1, 1))
sketch4.addConstraint(Sketcher.Constraint("Symmetric", 0, 3, 2, 3, -2))
sketch4.addConstraint(Sketcher.Constraint("Symmetric", 4, 3, 12, 3, -1))
sketch4.addConstraint(Sketcher.Constraint("Symmetric", 6, 3, 14, 3, -1))
sketch4.addConstraint(Sketcher.Constraint("Horizontal", 3, 3, 4, 3))
sketch4.addConstraint(Sketcher.Constraint("Horizontal", 5, 3, 6, 3))
sketch4.addConstraint(Sketcher.Constraint("Diameter", 0, Q("0.39 in")))
sketch4.addConstraint(Sketcher.Constraint("Diameter", 1, Q("0.19 in")))
sketch4.addConstraint(Sketcher.Constraint("DistanceY", -1, 1, 0, 3, Q("2 in")))
sketch4.addConstraint(Sketcher.Constraint("DistanceX", -1, 1, 6, 3, Q("6 in")))
sketch4.addConstraint(Sketcher.Constraint("DistanceX", -1, 1, 4, 3, Q("3.5 in")))
sketch4.addConstraint(Sketcher.Constraint("DistanceX", 0, 3, 2, 3, Q("2.5 in")))
pocket1 = body.newObject("PartDesign::Pocket", "Pocket")
pocket1.Profile = sketch4
pocket1.Length = Q("0.125 in")

sketch5 = body.newObject("Sketcher::SketchObject", "Sketch004")
sketch5.AttachmentSupport = (doc.getObject("XY_Plane"), [""])
sketch5.MapMode = "FlatFace"
sketch5.AttachmentOffset = App.Placement(Vector(0, 0, -0.25 * 25.4), App.Rotation())
sketch5.addGeometry(Part.Circle(Vector(-31.8, -50.8, 0), Vector(0, 0, 1), 5), False)
sketch5.addGeometry(Part.Circle(Vector(31.8, -50.8, 0), Vector(0, 0, 1), 5), False)
sketch5.addGeometry(Part.Circle(Vector(88.9, -50.8, 0), Vector(0, 0, 1), 5), False)
sketch5.addGeometry(Part.Circle(Vector(152.4, -50.8, 0), Vector(0, 0, 1), 5), False)
sketch5.addGeometry(Part.Circle(Vector(-31.8, 50.8, 0), Vector(0, 0, 1), 5), False)
sketch5.addGeometry(Part.Circle(Vector(31.8, 50.8, 0), Vector(0, 0, 1), 5), False)
sketch5.addGeometry(Part.Circle(Vector(88.9, 50.8, 0), Vector(0, 0, 1), 5), False)
sketch5.addGeometry(Part.Circle(Vector(152.4, 50.8, 0), Vector(0, 0, 1), 5), False)
sketch5.addConstraint(Sketcher.Constraint("Equal", 0, 1))
sketch5.addConstraint(Sketcher.Constraint("Equal", 1, 2))
sketch5.addConstraint(Sketcher.Constraint("Equal", 2, 3))
sketch5.addConstraint(Sketcher.Constraint("Equal", 3, 4))
sketch5.addConstraint(Sketcher.Constraint("Equal", 4, 5))
sketch5.addConstraint(Sketcher.Constraint("Equal", 5, 6))
sketch5.addConstraint(Sketcher.Constraint("Equal", 6, 7))
sketch5.addConstraint(Sketcher.Constraint("Symmetric", 1, 3, 4, 3, -1, 1))
sketch5.addConstraint(Sketcher.Constraint("Symmetric", 0, 3, 5, 3, -1, 1))
sketch5.addConstraint(Sketcher.Constraint("Symmetric", 0, 3, 1, 3, -2))
sketch5.addConstraint(Sketcher.Constraint("Symmetric", 2, 3, 6, 3, -1))
sketch5.addConstraint(Sketcher.Constraint("Symmetric", 3, 3, 7, 3, -1))
sketch5.addConstraint(Sketcher.Constraint("Horizontal", 1, 3, 2, 3))
sketch5.addConstraint(Sketcher.Constraint("Horizontal", 2, 3, 3, 3))
sketch5.addConstraint(Sketcher.Constraint("Diameter", 0, Q("0.39 in")))
sketch5.addConstraint(Sketcher.Constraint("DistanceY", 0, 3, -1, 1, Q("2 in")))
sketch5.addConstraint(Sketcher.Constraint("DistanceX", -1, 1, 3, 3, Q("6 in")))
sketch5.addConstraint(Sketcher.Constraint("DistanceX", -1, 1, 2, 3, Q("3.5 in")))
sketch5.addConstraint(Sketcher.Constraint("DistanceX", 0, 3, 1, 3, Q("2.5 in")))
pocket2 = body.newObject("PartDesign::Pocket", "Pocket001")
pocket2.Profile = sketch5
pocket2.Length = Q("0.125 in")
pocket2.Reversed = True

doc.recompute()
